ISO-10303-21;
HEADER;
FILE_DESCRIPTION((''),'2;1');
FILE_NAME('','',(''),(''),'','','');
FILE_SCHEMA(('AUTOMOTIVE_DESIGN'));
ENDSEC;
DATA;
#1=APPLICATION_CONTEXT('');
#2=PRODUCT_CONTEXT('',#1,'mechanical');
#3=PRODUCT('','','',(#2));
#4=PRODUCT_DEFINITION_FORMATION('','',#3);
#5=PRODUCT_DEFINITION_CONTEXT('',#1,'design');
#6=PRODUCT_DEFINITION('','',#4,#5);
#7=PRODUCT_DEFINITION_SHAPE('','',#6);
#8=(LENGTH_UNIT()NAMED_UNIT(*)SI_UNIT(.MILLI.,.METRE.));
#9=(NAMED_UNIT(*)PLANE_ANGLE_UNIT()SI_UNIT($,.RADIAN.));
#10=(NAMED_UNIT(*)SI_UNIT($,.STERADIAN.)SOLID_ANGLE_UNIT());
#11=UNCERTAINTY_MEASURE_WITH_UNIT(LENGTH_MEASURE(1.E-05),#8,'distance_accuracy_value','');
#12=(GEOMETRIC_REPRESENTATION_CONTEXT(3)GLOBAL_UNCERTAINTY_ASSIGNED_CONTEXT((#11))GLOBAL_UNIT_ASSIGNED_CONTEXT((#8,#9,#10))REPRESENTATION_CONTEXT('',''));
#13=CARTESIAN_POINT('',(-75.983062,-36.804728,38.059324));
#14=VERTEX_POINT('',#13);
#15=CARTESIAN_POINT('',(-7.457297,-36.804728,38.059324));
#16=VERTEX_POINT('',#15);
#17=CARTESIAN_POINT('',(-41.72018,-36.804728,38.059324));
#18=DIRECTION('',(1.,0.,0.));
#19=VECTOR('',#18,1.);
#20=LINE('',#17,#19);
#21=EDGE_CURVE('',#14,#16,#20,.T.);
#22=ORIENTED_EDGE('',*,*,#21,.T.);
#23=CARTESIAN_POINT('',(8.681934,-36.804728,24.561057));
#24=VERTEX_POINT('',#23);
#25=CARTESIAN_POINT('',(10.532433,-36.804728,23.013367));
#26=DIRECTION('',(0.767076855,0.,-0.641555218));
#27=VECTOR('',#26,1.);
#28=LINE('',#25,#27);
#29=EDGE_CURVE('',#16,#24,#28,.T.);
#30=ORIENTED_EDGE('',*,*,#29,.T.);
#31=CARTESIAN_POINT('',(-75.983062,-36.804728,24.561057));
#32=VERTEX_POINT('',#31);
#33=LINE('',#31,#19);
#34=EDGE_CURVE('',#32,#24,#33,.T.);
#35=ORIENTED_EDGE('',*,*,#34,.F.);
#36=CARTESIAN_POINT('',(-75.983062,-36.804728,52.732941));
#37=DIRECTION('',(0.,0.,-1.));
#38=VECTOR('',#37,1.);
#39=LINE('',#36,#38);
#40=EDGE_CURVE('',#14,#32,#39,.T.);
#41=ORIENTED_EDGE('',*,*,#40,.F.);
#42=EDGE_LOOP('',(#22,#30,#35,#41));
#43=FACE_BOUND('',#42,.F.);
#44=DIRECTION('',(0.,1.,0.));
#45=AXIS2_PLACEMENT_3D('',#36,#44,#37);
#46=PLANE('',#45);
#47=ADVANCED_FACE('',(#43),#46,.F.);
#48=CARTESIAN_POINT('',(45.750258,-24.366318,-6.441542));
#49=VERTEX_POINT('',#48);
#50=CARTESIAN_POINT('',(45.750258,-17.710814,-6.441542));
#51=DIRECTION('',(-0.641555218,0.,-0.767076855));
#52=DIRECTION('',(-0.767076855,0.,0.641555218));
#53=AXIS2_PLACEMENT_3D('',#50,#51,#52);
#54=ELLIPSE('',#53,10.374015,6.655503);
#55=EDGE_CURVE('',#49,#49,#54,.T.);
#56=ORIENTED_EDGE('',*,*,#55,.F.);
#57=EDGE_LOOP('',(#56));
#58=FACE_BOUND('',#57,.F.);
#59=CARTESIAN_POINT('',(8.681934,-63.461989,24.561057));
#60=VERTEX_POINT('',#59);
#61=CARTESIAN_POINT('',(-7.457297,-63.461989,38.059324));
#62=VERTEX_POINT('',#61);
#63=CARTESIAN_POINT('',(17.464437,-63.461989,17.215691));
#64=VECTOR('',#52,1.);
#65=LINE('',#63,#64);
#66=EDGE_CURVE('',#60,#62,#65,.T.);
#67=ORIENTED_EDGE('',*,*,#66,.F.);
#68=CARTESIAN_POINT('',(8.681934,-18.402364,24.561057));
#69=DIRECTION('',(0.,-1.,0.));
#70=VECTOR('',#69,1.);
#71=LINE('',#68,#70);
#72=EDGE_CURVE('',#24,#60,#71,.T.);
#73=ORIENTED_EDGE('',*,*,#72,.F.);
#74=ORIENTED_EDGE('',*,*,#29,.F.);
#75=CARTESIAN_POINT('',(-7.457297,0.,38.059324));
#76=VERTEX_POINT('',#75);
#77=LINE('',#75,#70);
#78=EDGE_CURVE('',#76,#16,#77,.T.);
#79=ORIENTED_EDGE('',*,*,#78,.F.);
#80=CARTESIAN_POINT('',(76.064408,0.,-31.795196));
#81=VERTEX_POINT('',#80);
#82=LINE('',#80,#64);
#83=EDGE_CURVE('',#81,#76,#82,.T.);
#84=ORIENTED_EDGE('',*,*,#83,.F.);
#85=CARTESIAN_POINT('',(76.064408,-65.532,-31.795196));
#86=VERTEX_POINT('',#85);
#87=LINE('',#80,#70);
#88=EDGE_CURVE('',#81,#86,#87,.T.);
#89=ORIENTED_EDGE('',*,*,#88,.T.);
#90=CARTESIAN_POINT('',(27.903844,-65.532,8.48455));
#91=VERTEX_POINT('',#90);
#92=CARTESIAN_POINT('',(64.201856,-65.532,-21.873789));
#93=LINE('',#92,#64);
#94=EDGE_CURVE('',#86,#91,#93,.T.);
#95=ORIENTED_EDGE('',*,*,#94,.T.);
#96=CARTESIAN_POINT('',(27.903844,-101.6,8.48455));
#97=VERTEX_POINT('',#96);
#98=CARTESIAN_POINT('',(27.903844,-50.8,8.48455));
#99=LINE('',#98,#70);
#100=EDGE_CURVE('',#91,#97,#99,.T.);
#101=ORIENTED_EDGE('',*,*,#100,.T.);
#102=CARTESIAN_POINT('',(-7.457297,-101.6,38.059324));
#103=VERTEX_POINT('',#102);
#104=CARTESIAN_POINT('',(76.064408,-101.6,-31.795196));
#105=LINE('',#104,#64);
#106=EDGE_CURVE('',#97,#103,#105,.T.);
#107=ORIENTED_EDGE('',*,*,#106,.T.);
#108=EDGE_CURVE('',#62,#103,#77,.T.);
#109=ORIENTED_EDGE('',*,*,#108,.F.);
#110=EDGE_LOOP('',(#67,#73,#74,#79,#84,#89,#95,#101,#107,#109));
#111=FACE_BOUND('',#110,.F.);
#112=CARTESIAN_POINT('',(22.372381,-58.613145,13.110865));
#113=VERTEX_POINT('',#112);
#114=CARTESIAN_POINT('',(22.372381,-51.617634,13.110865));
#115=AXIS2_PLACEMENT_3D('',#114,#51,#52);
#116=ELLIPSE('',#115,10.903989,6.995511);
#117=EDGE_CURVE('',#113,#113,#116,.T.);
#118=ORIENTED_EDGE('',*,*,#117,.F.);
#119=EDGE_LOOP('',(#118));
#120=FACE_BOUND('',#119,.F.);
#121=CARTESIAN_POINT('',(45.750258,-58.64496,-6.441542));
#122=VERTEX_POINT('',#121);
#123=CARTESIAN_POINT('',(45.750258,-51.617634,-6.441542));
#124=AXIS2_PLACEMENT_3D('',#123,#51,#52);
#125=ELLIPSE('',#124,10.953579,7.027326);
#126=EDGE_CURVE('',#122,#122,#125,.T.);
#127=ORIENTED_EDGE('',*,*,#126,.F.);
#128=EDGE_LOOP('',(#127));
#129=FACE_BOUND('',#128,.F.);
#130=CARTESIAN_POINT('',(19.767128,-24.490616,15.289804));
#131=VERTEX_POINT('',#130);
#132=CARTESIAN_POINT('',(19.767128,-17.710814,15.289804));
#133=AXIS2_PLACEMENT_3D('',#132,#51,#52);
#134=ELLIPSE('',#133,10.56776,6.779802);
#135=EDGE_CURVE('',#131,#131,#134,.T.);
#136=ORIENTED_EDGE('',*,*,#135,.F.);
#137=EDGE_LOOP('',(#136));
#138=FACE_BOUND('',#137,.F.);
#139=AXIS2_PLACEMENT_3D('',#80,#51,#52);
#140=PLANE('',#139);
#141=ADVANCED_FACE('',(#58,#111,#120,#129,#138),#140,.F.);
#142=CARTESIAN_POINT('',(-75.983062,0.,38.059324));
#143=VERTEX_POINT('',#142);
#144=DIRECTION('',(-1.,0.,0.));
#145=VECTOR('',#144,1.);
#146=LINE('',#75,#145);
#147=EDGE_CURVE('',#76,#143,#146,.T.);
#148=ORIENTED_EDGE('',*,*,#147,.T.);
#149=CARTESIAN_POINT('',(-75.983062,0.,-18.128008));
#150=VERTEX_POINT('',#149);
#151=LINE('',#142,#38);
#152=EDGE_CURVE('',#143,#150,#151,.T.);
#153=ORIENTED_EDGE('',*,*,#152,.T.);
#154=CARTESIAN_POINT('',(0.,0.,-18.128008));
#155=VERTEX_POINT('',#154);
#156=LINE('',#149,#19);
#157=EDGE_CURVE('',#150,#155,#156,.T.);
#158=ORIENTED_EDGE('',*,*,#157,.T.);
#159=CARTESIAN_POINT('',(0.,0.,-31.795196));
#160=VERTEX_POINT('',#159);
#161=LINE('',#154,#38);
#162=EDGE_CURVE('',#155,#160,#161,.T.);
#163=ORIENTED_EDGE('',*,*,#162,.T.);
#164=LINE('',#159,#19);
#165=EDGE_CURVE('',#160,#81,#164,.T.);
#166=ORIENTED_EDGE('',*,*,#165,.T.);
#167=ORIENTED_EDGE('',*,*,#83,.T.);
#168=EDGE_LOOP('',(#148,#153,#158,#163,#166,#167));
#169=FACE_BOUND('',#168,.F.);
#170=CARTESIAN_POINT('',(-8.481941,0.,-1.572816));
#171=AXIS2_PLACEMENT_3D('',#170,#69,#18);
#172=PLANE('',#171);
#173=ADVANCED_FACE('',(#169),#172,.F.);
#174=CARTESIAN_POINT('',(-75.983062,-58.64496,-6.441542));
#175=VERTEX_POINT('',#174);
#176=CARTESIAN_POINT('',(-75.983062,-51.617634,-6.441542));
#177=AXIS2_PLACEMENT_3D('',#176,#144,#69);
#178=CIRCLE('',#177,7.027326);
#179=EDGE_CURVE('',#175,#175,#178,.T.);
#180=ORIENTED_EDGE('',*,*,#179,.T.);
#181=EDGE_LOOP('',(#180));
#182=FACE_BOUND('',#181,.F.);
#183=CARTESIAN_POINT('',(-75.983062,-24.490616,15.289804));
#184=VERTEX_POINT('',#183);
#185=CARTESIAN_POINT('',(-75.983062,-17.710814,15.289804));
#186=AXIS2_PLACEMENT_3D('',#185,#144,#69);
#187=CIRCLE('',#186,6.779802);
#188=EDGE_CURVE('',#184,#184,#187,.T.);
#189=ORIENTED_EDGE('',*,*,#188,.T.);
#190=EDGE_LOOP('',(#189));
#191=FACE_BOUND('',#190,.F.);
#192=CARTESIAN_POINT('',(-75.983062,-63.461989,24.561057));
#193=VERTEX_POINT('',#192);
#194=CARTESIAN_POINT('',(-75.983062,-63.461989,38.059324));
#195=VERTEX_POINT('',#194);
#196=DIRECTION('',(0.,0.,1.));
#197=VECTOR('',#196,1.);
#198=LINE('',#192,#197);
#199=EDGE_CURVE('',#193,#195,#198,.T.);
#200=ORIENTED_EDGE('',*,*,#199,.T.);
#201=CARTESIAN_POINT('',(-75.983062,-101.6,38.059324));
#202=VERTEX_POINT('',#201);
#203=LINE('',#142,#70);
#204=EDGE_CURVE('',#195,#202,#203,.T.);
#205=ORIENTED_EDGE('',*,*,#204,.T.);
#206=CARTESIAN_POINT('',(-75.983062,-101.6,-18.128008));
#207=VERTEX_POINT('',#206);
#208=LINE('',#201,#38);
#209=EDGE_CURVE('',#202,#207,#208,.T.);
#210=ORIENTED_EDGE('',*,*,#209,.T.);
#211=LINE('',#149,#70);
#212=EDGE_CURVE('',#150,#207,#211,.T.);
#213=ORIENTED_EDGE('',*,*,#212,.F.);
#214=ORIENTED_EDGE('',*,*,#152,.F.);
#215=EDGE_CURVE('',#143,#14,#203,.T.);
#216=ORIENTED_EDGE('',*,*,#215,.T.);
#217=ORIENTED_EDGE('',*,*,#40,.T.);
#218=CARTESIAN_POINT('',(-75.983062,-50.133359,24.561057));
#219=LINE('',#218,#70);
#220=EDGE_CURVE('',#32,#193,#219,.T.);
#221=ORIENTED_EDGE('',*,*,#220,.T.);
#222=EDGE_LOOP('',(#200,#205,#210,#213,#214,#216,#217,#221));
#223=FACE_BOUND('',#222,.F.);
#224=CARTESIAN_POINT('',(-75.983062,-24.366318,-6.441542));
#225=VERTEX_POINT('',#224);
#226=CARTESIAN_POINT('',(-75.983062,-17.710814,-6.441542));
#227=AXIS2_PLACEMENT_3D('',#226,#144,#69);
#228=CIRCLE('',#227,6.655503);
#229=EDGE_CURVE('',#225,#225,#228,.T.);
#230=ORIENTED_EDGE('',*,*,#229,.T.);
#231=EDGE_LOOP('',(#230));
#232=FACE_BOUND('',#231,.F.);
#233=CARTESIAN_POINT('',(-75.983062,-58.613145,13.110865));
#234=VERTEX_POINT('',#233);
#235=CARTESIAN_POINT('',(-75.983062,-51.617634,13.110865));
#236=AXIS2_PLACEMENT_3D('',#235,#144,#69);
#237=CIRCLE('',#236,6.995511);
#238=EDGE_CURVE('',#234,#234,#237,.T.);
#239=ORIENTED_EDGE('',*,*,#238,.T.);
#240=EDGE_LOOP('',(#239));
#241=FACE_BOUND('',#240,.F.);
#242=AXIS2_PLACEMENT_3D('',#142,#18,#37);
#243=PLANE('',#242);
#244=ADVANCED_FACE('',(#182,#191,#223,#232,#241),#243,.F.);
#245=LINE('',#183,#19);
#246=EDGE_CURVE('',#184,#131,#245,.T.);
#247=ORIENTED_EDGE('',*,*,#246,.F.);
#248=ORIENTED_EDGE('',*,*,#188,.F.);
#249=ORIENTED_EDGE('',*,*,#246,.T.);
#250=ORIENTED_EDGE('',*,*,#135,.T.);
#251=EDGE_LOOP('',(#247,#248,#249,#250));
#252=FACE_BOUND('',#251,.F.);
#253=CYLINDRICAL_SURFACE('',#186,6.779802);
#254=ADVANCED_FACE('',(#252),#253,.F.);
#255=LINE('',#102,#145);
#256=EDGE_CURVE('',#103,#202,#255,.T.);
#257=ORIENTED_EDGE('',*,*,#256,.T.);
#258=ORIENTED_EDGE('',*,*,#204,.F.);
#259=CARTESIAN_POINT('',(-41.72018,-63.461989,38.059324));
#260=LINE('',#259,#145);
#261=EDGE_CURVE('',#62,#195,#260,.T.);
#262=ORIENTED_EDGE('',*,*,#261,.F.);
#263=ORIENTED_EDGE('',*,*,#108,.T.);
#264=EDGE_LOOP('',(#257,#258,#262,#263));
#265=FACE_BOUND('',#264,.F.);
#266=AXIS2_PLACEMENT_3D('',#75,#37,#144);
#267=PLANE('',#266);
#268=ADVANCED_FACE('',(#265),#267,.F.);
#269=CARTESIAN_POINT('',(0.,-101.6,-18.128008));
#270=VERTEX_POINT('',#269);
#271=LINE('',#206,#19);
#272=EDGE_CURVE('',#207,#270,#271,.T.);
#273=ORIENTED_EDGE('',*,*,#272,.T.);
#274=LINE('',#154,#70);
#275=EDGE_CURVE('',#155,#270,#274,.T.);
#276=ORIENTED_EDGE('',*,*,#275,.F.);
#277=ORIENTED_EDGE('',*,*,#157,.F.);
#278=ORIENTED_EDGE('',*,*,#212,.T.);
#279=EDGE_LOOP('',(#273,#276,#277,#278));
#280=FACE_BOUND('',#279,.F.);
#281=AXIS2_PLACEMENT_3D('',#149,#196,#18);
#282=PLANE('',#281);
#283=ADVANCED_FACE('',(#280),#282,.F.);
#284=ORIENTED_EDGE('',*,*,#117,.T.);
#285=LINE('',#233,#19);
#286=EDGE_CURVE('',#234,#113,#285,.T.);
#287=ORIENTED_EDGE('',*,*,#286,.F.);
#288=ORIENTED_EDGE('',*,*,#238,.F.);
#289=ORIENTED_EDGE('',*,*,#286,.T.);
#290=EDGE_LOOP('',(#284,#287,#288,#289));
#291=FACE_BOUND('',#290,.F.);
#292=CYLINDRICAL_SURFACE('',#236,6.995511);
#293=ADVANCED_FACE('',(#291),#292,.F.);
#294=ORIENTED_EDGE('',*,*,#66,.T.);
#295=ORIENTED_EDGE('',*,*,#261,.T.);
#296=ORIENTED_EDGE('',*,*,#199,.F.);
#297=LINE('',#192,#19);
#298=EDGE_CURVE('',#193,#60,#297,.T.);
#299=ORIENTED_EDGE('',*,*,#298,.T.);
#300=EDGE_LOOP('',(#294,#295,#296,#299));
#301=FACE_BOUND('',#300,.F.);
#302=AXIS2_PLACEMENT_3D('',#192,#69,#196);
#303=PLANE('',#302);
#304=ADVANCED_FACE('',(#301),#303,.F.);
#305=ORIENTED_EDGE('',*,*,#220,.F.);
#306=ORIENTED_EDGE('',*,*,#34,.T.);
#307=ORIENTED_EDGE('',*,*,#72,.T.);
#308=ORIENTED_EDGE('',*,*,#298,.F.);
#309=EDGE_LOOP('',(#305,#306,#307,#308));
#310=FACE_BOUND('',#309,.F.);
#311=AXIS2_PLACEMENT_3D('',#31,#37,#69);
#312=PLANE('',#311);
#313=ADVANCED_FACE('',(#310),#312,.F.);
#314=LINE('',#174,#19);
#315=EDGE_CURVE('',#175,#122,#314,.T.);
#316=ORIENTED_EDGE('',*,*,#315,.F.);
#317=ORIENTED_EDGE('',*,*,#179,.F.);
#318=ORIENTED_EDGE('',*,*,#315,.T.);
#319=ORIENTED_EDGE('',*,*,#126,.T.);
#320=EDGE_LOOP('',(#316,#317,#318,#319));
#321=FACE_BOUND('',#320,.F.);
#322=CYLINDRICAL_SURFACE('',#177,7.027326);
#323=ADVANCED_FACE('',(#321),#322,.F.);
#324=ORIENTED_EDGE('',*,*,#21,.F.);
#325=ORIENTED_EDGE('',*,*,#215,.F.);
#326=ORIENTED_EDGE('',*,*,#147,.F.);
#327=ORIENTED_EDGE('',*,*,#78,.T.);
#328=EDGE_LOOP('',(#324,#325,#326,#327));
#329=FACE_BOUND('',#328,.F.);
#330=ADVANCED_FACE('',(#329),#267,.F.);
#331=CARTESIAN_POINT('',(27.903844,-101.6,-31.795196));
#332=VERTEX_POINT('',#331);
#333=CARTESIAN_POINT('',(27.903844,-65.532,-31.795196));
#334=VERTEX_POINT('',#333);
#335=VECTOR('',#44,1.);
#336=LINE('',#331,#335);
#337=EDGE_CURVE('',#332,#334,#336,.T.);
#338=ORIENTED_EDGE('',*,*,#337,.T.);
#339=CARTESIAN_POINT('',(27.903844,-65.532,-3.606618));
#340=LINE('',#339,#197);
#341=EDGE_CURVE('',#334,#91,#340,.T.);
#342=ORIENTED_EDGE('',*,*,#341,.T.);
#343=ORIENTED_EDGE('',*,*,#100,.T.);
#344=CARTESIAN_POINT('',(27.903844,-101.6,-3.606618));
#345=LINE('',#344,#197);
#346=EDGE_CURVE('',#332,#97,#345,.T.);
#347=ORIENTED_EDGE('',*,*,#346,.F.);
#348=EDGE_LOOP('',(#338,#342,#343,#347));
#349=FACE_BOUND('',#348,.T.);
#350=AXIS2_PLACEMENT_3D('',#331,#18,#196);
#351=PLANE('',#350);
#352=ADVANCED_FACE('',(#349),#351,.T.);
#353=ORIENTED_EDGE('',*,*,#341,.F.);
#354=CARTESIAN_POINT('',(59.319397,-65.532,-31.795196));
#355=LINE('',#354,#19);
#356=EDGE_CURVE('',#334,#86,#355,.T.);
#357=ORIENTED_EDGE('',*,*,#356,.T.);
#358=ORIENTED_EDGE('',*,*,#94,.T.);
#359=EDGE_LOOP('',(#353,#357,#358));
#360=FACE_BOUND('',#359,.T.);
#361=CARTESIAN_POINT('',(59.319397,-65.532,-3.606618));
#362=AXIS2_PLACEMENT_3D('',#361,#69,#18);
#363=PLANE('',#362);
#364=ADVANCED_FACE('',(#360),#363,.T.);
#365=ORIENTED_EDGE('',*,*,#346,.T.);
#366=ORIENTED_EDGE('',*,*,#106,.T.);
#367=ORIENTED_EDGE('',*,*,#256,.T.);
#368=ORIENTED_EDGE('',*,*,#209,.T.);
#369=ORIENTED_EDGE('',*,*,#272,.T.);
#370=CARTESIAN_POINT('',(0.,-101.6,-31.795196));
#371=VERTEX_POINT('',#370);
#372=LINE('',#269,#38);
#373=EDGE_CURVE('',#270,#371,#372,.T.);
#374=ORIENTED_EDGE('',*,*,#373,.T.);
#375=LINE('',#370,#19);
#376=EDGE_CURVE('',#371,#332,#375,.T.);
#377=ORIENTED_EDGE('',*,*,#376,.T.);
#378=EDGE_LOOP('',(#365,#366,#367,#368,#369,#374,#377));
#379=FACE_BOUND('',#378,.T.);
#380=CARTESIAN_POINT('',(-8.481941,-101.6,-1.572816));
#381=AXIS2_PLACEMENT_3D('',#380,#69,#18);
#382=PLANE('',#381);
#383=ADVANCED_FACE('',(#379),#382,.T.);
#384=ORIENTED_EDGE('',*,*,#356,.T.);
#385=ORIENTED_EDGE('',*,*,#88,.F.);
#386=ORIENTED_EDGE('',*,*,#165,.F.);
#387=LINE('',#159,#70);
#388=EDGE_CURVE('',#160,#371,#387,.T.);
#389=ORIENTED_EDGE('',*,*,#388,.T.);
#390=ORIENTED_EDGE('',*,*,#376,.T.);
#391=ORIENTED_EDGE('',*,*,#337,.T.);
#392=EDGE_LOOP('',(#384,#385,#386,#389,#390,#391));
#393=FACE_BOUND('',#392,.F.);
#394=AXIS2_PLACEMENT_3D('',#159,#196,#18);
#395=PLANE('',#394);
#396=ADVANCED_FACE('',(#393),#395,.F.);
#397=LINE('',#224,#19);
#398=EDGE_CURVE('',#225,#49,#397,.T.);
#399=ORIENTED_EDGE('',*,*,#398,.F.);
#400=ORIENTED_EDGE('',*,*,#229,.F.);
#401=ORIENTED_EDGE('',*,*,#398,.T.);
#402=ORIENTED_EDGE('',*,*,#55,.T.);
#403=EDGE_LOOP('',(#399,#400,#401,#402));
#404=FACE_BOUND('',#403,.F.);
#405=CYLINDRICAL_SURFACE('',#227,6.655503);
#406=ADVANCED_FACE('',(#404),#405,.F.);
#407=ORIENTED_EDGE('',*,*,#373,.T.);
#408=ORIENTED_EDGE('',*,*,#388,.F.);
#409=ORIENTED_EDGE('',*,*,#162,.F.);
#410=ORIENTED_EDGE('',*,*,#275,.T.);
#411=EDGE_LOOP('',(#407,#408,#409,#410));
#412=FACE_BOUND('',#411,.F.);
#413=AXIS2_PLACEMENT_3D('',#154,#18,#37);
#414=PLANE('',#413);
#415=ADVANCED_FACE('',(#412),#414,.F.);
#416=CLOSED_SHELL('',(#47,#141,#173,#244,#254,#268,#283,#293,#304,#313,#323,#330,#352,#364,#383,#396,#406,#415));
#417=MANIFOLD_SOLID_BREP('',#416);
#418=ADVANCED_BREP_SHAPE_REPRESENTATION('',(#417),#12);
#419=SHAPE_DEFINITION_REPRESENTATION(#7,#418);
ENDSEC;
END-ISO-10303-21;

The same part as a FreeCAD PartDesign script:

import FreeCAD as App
import Part
import Sketcher
Q = App.Units.Quantity


def add_polygon(sketch, points):
    """Adds a closed chain of lines whose ends are joined by coincident constraints."""
    first, n = sketch.GeometryCount, len(points)
    for a, b in zip(points, points[1:] + points[:1]):
        sketch.addGeometry(Part.LineSegment(App.Vector(*a, 0), App.Vector(*b, 0)), False)
    for i in range(n):
        sketch.addConstraint(Sketcher.Constraint("Coincident", first + i, 2, first + (i + 1) % n, 1))

doc = App.newDocument("Part")
body = doc.addObject("PartDesign::Body", "Body")

sketch1 = body.newObject("Sketcher::SketchObject", "Sketch")
sketch1.AttachmentSupport = (doc.getObject("XZ_Plane"), [""])
sketch1.MapMode = "FlatFace"
add_polygon(sketch1, [(-7, 38), (-76, 38), (-76, -18), (0, -18), (0, -32), (76, -32)])
sketch1.addConstraint(Sketcher.Constraint("Horizontal", 0))
sketch1.addConstraint(Sketcher.Constraint("Vertical", 1))
sketch1.addConstraint(Sketcher.Constraint("Horizontal", 2))
sketch1.addConstraint(Sketcher.Constraint("Vertical", 3))
sketch1.addConstraint(Sketcher.Constraint("Horizontal", 4))
sketch1.addConstraint(Sketcher.Constraint("PointOnObject", 2, 2, -2))
sketch1.addConstraint(Sketcher.Constraint("Distance", 5, 108.883099))
sketch1.addConstraint(Sketcher.Constraint("DistanceY", 1, 2, 1, 1, 56.187332))
sketch1.addConstraint(Sketcher.Constraint("DistanceY", 3, 2, 3, 1, 13.667189))
sketch1.addConstraint(Sketcher.Constraint("DistanceX", 0, 2, 0, 1, 68.525765))
sketch1.addConstraint(Sketcher.Constraint("DistanceX", 2, 1, 2, 2, 75.983062))
sketch1.addConstraint(Sketcher.Constraint("DistanceY", -1, 1, 0, 2, 38.059324))
pad1 = body.newObject("PartDesign::Pad", "Pad")
pad1.Profile = sketch1
pad1.Length = Q("4 in")

sketch2 = body.newObject("Sketcher::SketchObject", "Sketch001")
sketch2.AttachmentSupport = (doc.getObject("XZ_Plane"), [""])
sketch2.MapMode = "FlatFace"
sketch2.AttachmentOffset = App.Placement(App.Vector(0, 0, 4 * 25.4), App.Rotation())
add_polygon(sketch2, [(28, 25), (28, -32), (91, -32), (91, 25)])
sketch2.addConstraint(Sketcher.Constraint("Vertical", 0))
sketch2.addConstraint(Sketcher.Constraint("Horizontal", 1))
sketch2.addConstraint(Sketcher.Constraint("Vertical", 2))
sketch2.addConstraint(Sketcher.Constraint("Horizontal", 3))
sketch2.addConstraint(Sketcher.Constraint("DistanceX", 1, 1, 1, 2, 62.831108))
sketch2.addConstraint(Sketcher.Constraint("DistanceY", 0, 2, 0, 1, 56.377156))
sketch2.addConstraint(Sketcher.Constraint("DistanceX", -1, 1, 1, 2, 90.734951))
sketch2.addConstraint(Sketcher.Constraint("DistanceY", -1, 1, 2, 2, 24.581959))
pocket1 = body.newObject("PartDesign::Pocket", "Pocket")
pocket1.Profile = sketch2
pocket1.Length = Q("1.42 in")

sketch3 = body.newObject("Sketcher::SketchObject", "Sketch002")
sketch3.AttachmentSupport = (doc.getObject("YZ_Plane"), [""])
sketch3.MapMode = "FlatFace"
sketch3.AttachmentOffset = App.Placement(App.Vector(0, 0, -75.983062), App.Rotation())
add_polygon(sketch3, [(-37, 25), (-63, 25), (-63, 53), (-37, 53)])
sketch3.addConstraint(Sketcher.Constraint("Horizontal", 0))
sketch3.addConstraint(Sketcher.Constraint("Vertical", 1))
sketch3.addConstraint(Sketcher.Constraint("Horizontal", 2))
sketch3.addConstraint(Sketcher.Constraint("Vertical", 3))
sketch3.addConstraint(Sketcher.Constraint("DistanceY", -1, 1, 1, 2, Q("2.0761 in")))
sketch3.addConstraint(Sketcher.Constraint("DistanceX", 0, 2, 0, 1, 26.657261))
sketch3.addConstraint(Sketcher.Constraint("DistanceY", 1, 1, 1, 2, 28.171884))
sketch3.addConstraint(Sketcher.Constraint("DistanceX", 0, 2, -1, 1, 63.461989))
pocket2 = body.newObject("PartDesign::Pocket", "Pocket001")
pocket2.Profile = sketch3
pocket2.Length = Q("4.28 in")
pocket2.Reversed = True

sketch4 = body.newObject("Sketcher::SketchObject", "Sketch003")
sketch4.AttachmentSupport = (doc.getObject("YZ_Plane"), [""])
sketch4.MapMode = "FlatFace"
sketch4.AttachmentOffset = App.Placement(App.Vector(0, 0, -75.983062), App.Rotation())
sketch4.addGeometry(Part.Circle(App.Vector(-52, -6, 0), App.Vector(0, 0, 1), 7), False)
sketch4.addGeometry(Part.Circle(App.Vector(-52, 13, 0), App.Vector(0, 0, 1), 7), False)
sketch4.addGeometry(Part.Circle(App.Vector(-18, -6, 0), App.Vector(0, 0, 1), 7), False)
sketch4.addGeometry(Part.Circle(App.Vector(-18, 15, 0), App.Vector(0, 0, 1), 7), False)
sketch4.addConstraint(Sketcher.Constraint("Horizontal", 0, 3, 2, 3))
sketch4.addConstraint(Sketcher.Constraint("Vertical", 0, 3, 1, 3))
sketch4.addConstraint(Sketcher.Constraint("Vertical", 2, 3, 3, 3))
sketch4.addConstraint(Sketcher.Constraint("Diameter", 0, 14.054652))
sketch4.addConstraint(Sketcher.Constraint("Diameter", 1, 13.991022))
sketch4.addConstraint(Sketcher.Constraint("Diameter", 2, 13.311007))
sketch4.addConstraint(Sketcher.Constraint("Diameter", 3, 13.559604))
sketch4.addConstraint(Sketcher.Constraint("DistanceX", 0, 3, 2, 3, 33.906819))
sketch4.addConstraint(Sketcher.Constraint("DistanceY", 1, 3, 3, 3, 2.178939))
sketch4.addConstraint(Sketcher.Constraint("DistanceX", 0, 3, -1, 1, 51.617634))
sketch4.addConstraint(Sketcher.Constraint("DistanceY", 0, 3, -1, 1, 6.441542))
sketch4.addConstraint(Sketcher.Constraint("DistanceY", -1, 1, 1, 3, 13.110865))
pocket3 = body.newObject("PartDesign::Pocket", "Pocket002")
pocket3.Profile = sketch4
pocket3.Length = Q("6.88 in")
pocket3.Reversed = True

doc.recompute()
